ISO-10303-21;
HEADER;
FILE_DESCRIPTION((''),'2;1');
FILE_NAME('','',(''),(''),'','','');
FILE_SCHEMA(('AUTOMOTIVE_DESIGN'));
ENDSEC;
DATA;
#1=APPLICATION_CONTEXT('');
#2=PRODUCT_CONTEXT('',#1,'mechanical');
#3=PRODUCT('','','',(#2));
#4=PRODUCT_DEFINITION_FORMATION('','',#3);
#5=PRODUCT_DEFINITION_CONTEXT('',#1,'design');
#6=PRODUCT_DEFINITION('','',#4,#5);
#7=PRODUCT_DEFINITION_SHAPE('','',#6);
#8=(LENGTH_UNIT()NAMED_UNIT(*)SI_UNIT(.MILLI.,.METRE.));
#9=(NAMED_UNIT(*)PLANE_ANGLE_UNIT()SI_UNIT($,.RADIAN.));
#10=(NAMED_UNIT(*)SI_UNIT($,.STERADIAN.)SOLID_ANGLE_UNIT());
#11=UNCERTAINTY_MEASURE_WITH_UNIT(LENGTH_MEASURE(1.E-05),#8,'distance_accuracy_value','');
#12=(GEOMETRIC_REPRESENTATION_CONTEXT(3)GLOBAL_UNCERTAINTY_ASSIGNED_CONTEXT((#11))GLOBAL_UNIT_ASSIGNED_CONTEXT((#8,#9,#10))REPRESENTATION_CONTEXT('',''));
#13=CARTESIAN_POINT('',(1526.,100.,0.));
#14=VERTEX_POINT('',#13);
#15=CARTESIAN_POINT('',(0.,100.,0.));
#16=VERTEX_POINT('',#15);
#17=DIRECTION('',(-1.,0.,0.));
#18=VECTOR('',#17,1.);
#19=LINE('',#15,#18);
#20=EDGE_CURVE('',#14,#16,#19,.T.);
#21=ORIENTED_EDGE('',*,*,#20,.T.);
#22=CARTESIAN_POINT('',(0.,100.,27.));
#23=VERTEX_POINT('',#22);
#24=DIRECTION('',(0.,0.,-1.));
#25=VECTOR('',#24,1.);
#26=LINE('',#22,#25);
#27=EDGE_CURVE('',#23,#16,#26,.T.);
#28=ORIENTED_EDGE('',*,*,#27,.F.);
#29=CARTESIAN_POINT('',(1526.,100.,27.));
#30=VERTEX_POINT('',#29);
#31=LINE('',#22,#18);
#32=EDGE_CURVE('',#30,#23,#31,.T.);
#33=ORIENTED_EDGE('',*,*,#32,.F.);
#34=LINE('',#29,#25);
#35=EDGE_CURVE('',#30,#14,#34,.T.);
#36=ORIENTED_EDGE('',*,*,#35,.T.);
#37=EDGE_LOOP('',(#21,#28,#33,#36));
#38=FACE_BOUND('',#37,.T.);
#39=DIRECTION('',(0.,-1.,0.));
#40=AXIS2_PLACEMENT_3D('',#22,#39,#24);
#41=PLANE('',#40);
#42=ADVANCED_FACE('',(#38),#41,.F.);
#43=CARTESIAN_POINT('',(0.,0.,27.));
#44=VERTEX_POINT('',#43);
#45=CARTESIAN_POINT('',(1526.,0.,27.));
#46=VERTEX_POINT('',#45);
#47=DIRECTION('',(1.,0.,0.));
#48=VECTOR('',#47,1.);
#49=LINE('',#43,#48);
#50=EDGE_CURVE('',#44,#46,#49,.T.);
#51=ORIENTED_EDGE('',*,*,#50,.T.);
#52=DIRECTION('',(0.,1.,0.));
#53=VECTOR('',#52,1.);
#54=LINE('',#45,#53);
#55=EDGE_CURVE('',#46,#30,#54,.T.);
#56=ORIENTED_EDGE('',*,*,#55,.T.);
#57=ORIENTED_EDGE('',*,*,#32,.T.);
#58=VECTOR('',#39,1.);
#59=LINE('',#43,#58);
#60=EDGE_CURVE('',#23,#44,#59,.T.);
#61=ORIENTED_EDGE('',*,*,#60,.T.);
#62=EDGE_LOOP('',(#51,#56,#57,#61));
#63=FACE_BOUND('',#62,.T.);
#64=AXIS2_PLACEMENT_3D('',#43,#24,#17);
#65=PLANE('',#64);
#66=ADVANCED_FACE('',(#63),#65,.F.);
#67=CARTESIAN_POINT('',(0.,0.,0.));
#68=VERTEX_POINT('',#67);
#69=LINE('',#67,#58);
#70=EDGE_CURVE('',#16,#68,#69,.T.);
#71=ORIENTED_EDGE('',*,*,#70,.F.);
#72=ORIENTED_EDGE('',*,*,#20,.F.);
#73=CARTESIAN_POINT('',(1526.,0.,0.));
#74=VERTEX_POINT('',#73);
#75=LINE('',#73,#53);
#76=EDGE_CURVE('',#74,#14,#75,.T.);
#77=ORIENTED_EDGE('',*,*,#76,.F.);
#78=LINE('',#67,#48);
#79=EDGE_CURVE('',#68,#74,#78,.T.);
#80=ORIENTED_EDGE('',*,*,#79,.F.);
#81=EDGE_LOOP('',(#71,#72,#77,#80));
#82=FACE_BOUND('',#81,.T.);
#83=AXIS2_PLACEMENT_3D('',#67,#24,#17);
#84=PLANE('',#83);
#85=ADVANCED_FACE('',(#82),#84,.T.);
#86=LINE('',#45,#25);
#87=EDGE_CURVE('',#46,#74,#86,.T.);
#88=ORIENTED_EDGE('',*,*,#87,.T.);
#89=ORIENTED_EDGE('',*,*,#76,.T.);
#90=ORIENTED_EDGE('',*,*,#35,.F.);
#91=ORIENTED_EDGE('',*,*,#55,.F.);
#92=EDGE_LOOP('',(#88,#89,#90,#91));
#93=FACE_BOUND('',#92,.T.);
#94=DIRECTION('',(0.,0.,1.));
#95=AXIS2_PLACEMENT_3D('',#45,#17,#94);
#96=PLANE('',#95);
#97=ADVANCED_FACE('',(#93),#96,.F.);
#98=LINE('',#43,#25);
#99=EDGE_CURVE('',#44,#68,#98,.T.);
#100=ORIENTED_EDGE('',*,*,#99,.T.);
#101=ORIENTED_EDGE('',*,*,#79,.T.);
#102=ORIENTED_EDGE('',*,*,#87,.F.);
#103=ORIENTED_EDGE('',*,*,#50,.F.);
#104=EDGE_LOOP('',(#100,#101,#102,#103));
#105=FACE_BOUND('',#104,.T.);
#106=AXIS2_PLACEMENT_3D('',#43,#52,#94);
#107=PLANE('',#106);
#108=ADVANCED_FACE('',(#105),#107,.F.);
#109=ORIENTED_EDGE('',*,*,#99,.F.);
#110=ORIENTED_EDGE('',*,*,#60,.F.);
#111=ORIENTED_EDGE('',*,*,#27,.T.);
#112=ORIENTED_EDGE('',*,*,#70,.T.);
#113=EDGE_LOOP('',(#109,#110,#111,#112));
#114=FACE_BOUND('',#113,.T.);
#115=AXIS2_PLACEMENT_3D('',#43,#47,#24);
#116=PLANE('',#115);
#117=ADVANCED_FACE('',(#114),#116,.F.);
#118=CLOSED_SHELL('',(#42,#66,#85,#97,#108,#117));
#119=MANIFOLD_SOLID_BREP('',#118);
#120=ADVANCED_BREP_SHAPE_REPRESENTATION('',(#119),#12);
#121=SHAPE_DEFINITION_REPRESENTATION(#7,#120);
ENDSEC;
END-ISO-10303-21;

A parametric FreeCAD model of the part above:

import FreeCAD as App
import Part
import Sketcher

V = App.Vector
Q = App.Units.Quantity


def add_polygon(sketch, points):
    """Adds a closed chain of lines whose ends are joined by coincident constraints."""
    first, n = sketch.GeometryCount, len(points)
    for a, b in zip(points, points[1:] + points[:1]):
        sketch.addGeometry(Part.LineSegment(App.Vector(*a, 0), App.Vector(*b, 0)), False)
    for i in range(n):
        sketch.addConstraint(Sketcher.Constraint("Coincident", first + i, 2, first + (i + 1) % n, 1))

doc = App.newDocument("Part")
params = doc.addObject("Spreadsheet::Sheet", "Params")
for row, (alias, value) in enumerate([
    ("sketch1_width", "1526 mm"),
    ("sketch1_height", "100 mm"),
    ("pad1_length", "27 mm"),
], start=1):
    params.set(f"A{row}", alias)
    params.set(f"B{row}", "=" + value)
    params.setAlias(f"B{row}", alias)

body = doc.addObject("PartDesign::Body", "Body")

sketch1 = doc.addObject("Sketcher::SketchObject", "Sketch")
body.addObject(sketch1)
sketch1.AttachmentSupport = (doc.XY_Plane, [""])
sketch1.MapMode = "FlatFace"
add_polygon(sketch1, [(0, 100), (0, 0), (1526, 0), (1526, 100)])
sketch1.addConstraint(Sketcher.Constraint("Vertical", 0))
sketch1.addConstraint(Sketcher.Constraint("Horizontal", 1))
sketch1.addConstraint(Sketcher.Constraint("Vertical", 2))
sketch1.addConstraint(Sketcher.Constraint("Horizontal", 3))
sketch1.addConstraint(Sketcher.Constraint("Coincident", 0, 2, -1, 1))
sketch1.addConstraint(Sketcher.Constraint("DistanceX", 1, 1, 1, 2, Q("1526 mm")))
sketch1.addConstraint(Sketcher.Constraint("DistanceY", 0, 2, 0, 1, Q("100 mm")))
sketch1.setExpression("Constraints[9]", "Params.sketch1_width")
sketch1.setExpression("Constraints[10]", "Params.sketch1_height")
pad1 = doc.addObject("PartDesign::Pad", "Pad")
body.addObject(pad1)
pad1.Profile = sketch1
pad1.setExpression("Length", "Params.pad1_length")

doc.recompute()
